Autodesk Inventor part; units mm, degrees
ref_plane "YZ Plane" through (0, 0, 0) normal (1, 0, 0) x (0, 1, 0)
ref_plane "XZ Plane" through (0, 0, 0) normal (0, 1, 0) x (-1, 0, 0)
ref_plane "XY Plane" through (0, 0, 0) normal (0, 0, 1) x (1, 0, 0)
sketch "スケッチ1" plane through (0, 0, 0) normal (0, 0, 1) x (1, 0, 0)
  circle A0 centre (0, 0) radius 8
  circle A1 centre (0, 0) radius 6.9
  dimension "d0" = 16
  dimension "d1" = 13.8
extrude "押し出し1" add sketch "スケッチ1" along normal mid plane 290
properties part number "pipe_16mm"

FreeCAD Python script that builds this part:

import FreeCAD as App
import Part
import Sketcher

V = App.Vector

doc = App.newDocument("Part")
body = doc.addObject("PartDesign::Body", "Body")

sketch1 = body.newObject("Sketcher::SketchObject", "Sketch")
sketch1.AttachmentSupport = (doc.getObject("XY_Plane"), [""])
sketch1.MapMode = "FlatFace"
sketch1.addGeometry([
    Part.Circle(V(0, 0, 0), V(0, 0, 1), 8),
    Part.Circle(V(0, 0, 0), V(0, 0, 1), 7),
], False)
sketch1.addConstraint([
    Sketcher.Constraint("Coincident", 0, 3, -1, 1),
    Sketcher.Constraint("Coincident", 1, 3, -1, 1),
    Sketcher.Constraint("Diameter", 0, 16.0),
    Sketcher.Constraint("Diameter", 1, 13.8),
])
pad1 = body.newObject("PartDesign::Pad", "Pad")
pad1.Profile = sketch1
pad1.Length = 290
pad1.Midplane = True

doc.recompute()
